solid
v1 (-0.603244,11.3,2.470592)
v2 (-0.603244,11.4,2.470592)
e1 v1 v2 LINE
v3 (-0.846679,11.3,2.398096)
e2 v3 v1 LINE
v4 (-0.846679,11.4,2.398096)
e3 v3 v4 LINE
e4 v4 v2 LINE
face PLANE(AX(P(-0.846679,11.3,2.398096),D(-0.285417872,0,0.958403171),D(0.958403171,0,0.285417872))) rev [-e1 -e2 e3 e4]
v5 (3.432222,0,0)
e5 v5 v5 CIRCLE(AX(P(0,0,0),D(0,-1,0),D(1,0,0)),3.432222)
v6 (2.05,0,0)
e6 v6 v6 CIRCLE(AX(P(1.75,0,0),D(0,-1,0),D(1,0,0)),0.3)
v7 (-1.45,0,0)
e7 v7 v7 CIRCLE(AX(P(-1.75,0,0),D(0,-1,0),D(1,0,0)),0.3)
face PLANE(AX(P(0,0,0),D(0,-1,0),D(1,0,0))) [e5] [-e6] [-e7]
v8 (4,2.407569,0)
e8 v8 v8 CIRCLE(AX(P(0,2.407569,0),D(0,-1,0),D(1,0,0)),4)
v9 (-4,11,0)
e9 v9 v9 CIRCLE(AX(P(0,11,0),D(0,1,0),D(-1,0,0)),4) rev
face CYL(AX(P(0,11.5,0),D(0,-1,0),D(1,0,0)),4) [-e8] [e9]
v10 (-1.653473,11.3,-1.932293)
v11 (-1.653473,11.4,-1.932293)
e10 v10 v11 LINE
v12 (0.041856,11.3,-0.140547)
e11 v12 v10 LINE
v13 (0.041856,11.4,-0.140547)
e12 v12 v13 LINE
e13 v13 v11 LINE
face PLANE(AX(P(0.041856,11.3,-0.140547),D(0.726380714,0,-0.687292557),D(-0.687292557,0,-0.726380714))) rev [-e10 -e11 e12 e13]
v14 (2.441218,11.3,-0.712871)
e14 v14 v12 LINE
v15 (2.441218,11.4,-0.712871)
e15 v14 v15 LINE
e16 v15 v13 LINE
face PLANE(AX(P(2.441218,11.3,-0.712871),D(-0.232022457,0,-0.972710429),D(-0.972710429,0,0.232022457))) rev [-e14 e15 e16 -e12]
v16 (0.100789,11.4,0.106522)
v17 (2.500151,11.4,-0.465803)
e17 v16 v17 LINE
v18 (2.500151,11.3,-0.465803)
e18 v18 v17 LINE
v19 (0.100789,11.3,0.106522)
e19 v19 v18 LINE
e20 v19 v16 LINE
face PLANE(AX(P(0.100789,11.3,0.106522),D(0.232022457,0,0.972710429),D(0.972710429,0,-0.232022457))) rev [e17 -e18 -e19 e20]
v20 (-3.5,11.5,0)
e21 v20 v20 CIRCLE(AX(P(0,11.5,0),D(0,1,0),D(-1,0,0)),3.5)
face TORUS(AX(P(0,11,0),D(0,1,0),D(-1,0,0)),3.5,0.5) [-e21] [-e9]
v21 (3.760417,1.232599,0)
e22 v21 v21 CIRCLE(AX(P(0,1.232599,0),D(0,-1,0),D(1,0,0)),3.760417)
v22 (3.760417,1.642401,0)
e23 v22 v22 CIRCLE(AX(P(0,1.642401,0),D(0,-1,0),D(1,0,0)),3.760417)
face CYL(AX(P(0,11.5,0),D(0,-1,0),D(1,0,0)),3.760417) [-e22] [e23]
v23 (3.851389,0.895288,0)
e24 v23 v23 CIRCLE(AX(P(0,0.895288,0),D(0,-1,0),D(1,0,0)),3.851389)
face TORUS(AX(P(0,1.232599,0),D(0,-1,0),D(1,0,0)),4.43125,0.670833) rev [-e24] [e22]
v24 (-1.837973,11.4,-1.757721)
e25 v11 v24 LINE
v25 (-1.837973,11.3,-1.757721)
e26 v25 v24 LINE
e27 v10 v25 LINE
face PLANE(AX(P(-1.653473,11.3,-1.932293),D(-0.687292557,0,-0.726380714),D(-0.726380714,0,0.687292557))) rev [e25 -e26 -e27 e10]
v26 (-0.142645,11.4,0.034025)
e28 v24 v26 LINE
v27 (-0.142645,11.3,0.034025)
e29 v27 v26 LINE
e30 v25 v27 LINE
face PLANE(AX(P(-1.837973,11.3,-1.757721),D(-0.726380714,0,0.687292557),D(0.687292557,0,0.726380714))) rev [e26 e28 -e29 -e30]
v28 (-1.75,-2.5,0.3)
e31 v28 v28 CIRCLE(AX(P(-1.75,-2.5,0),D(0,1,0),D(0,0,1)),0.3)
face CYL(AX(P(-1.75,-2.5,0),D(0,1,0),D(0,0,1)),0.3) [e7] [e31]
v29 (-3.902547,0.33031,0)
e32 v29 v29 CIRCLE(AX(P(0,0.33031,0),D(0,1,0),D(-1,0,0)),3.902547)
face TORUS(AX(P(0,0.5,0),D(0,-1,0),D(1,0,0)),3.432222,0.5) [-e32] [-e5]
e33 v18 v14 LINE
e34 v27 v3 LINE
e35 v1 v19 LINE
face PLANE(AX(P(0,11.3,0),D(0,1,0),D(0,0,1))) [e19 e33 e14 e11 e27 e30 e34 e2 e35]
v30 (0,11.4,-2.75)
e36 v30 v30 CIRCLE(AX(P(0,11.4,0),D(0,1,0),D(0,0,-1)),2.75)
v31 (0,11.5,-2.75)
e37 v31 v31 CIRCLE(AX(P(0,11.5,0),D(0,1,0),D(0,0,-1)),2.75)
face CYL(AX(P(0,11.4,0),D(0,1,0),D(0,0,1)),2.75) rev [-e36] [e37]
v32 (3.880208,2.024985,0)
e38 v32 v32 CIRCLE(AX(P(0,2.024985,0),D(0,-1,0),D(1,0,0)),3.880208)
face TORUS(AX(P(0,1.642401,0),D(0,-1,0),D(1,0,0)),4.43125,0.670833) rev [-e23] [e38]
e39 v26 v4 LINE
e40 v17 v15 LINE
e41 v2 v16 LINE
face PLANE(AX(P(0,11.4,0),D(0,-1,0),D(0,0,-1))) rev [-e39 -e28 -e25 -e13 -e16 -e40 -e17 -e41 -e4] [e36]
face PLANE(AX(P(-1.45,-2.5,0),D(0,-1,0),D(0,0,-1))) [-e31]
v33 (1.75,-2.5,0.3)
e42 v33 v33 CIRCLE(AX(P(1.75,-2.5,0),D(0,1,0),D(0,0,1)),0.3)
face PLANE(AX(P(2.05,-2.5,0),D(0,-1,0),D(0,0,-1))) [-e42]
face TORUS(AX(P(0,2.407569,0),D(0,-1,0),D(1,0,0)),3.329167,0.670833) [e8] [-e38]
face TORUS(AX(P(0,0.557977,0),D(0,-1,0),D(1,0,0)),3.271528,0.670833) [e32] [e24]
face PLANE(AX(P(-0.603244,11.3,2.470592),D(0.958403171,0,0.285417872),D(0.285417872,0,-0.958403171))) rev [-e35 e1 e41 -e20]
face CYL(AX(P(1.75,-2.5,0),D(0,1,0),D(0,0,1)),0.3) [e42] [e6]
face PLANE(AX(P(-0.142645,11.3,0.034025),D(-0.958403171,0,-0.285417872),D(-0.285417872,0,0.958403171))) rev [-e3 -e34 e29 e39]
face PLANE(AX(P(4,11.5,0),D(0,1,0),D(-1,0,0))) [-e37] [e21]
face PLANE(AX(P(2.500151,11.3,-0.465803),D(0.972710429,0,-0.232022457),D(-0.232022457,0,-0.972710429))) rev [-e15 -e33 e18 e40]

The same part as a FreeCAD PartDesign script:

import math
import FreeCAD as App
import Part
import Sketcher


def edges_at(feature, points):
    """Names of the edges that pass closest to the given points."""
    edges = feature.Shape.Edges
    near = lambda p: min(range(len(edges)), key=lambda i: edges[i].distToShape(Part.Vertex(*p))[0])
    return sorted({f"Edge{near(p) + 1}" for p in points})


def add_polygon(sketch, points):
    """Adds a closed chain of lines whose ends are joined by coincident constraints."""
    first, n = sketch.GeometryCount, len(points)
    for a, b in zip(points, points[1:] + points[:1]):
        sketch.addGeometry(Part.LineSegment(App.Vector(*a, 0), App.Vector(*b, 0)), False)
    for i in range(n):
        sketch.addConstraint(Sketcher.Constraint("Coincident", first + i, 2, first + (i + 1) % n, 1))

doc = App.newDocument("Part")
params = doc.addObject("Spreadsheet::Sheet", "Params")
for row, (alias, value) in enumerate([
    ("sketch1_width", "4 mm"),
    ("sketch1_height", "11.5 mm"),
    ("revolution_angle", "360 deg"),
    ("sketch2_diameter", "5.5 mm"),
    ("pocket1_length", "0.1 mm"),
    ("pocket2_length", "0.1 mm"),
    ("sketch4_width", "0.3 mm"),
    ("sketch4_height", "2.5 mm"),
    ("revolution2_angle", "360 deg"),
    ("sketch5_width", "0.3 mm"),
    ("sketch5_height", "2.5 mm"),
    ("revolution3_angle", "360 deg"),
    ("fillet_radius", "0.5 mm"),
], start=1):
    params.set(f"A{row}", alias)
    params.set(f"B{row}", "=" + value)
    params.setAlias(f"B{row}", alias)

body = doc.addObject("PartDesign::Body", "Body")

# Sketch on XY plane
sketch1 = body.newObject("Sketcher::SketchObject", "Sketch")
sketch1.AttachmentSupport = (doc.getObject("XY_Plane"), [""])
sketch1.MapMode = "FlatFace"
sketch1.addGeometry(Part.LineSegment(App.Vector(4, 11.5, 0), App.Vector(0, 11.5, 0)), False)
sketch1.addGeometry(Part.LineSegment(App.Vector(0, 11.5, 0), App.Vector(0, 0, 0)), False)
sketch1.addGeometry(Part.LineSegment(App.Vector(0, 0, 0), App.Vector(3.64, 0, 0)), False)
sketch1.addGeometry(Part.ArcOfCircle(Part.Circle(App.Vector(3.27, 0.56, 0), App.Vector(0, 0, 1), 0.67), math.radians(-56), math.radians(30)), False)
sketch1.addGeometry(Part.ArcOfCircle(Part.Circle(App.Vector(4.43, 1.23, 0), App.Vector(0, 0, 1), 0.67), math.radians(180), math.radians(210)), False)
sketch1.addGeometry(Part.LineSegment(App.Vector(3.76, 1.23, 0), App.Vector(3.76, 1.64, 0)), False)
sketch1.addGeometry(Part.ArcOfCircle(Part.Circle(App.Vector(4.43, 1.64, 0), App.Vector(0, 0, 1), 0.67), math.radians(145), math.radians(180)), False)
sketch1.addGeometry(Part.ArcOfCircle(Part.Circle(App.Vector(3.33, 2.41, 0), App.Vector(0, 0, 1), 0.67), math.radians(-35), math.radians(0)), False)
sketch1.addGeometry(Part.LineSegment(App.Vector(4, 2.41, 0), App.Vector(4, 11.5, 0)), False)
sketch1.addConstraint(Sketcher.Constraint("Coincident", 0, 2, 1, 1))
sketch1.addConstraint(Sketcher.Constraint("Coincident", 1, 2, 2, 1))
sketch1.addConstraint(Sketcher.Constraint("Coincident", 2, 2, 3, 1))
sketch1.addConstraint(Sketcher.Constraint("Tangent", 3, 2, 4, 2))
sketch1.addConstraint(Sketcher.Constraint("Tangent", 4, 1, 5, 1))
sketch1.addConstraint(Sketcher.Constraint("Tangent", 5, 2, 6, 2))
sketch1.addConstraint(Sketcher.Constraint("Tangent", 6, 1, 7, 1))
sketch1.addConstraint(Sketcher.Constraint("Tangent", 7, 2, 8, 1))
sketch1.addConstraint(Sketcher.Constraint("Coincident", 8, 2, 0, 1))
sketch1.addConstraint(Sketcher.Constraint("Horizontal", 0))
sketch1.addConstraint(Sketcher.Constraint("Vertical", 1))
sketch1.addConstraint(Sketcher.Constraint("Horizontal", 2))
sketch1.addConstraint(Sketcher.Constraint("Vertical", 5))
sketch1.addConstraint(Sketcher.Constraint("Vertical", 8))
sketch1.addConstraint(Sketcher.Constraint("Coincident", 1, 2, -1, 1))
sketch1.addConstraint(Sketcher.Constraint("Equal", 3, 4))
sketch1.addConstraint(Sketcher.Constraint("Equal", 4, 6))
sketch1.addConstraint(Sketcher.Constraint("Equal", 6, 7))
sketch1.addConstraint(Sketcher.Constraint("DistanceX", 0, 2, 0, 1, 4.0))
sketch1.addConstraint(Sketcher.Constraint("DistanceY", 1, 2, 1, 1, 11.5))
sketch1.addConstraint(Sketcher.Constraint("DistanceY", 5, 1, 5, 2, 0.409802))
sketch1.addConstraint(Sketcher.Constraint("Radius", 3, 0.670833))
sketch1.addConstraint(Sketcher.Constraint("DistanceY", 8, 1, 8, 2, 9.092431))
sketch1.addConstraint(Sketcher.Constraint("DistanceY", -1, 1, 4, 3, 1.232599))
sketch1.addConstraint(Sketcher.Constraint("DistanceX", 2, 1, 2, 2, 3.643924))
sketch1.setExpression("Constraints[18]", "Params.sketch1_width")
sketch1.setExpression("Constraints[19]", "Params.sketch1_height")
revolution = body.newObject("PartDesign::Revolution", "Revolution")
revolution.Profile = sketch1
revolution.ReferenceAxis = (sketch1, ["V_Axis"])
revolution.setExpression("Angle", "Params.revolution_angle")

# Sketch on XZ plane
sketch2 = body.newObject("Sketcher::SketchObject", "Sketch001")
sketch2.AttachmentSupport = (doc.getObject("XZ_Plane"), [""])
sketch2.MapMode = "FlatFace"
sketch2.AttachmentOffset = App.Placement(App.Vector(0, 0, -11.5), App.Rotation())
sketch2.addGeometry(Part.Circle(App.Vector(0, 0, 0), App.Vector(0, 0, 1), 2.8), False)
sketch2.addConstraint(Sketcher.Constraint("Coincident", 0, 3, -1, 1))
sketch2.addConstraint(Sketcher.Constraint("Diameter", 0, 5.5))
sketch2.setExpression("Constraints[1]", "Params.sketch2_diameter")
pocket1 = body.newObject("PartDesign::Pocket", "Pocket")
pocket1.Profile = sketch2
pocket1.setExpression("Length", "Params.pocket1_length")
pocket1.Reversed = True

# Sketch on XZ plane
sketch3 = body.newObject("Sketcher::SketchObject", "Sketch002")
sketch3.AttachmentSupport = (doc.getObject("XZ_Plane"), [""])
sketch3.MapMode = "FlatFace"
sketch3.AttachmentOffset = App.Placement(App.Vector(0, 0, -11.4), App.Rotation())
add_polygon(sketch3, [(-1.65, -1.93), (-1.84, -1.76), (-0.14, 0.03), (-0.85, 2.4), (-0.6, 2.47), (0.1, 0.11), (2.5, -0.47), (2.44, -0.71), (0.04, -0.14)])  # lines 0-8
sketch3.addConstraint(Sketcher.Constraint("Perpendicular", 0, 1))
sketch3.addConstraint(Sketcher.Constraint("Perpendicular", 2, 3))
sketch3.addConstraint(Sketcher.Constraint("Perpendicular", 3, 4))
sketch3.addConstraint(Sketcher.Constraint("Perpendicular", 5, 6))
sketch3.addConstraint(Sketcher.Constraint("Perpendicular", 6, 7))
sketch3.addConstraint(Sketcher.Constraint("Parallel", 1, 8))
sketch3.addConstraint(Sketcher.Constraint("Equal", 1, 2))
sketch3.addConstraint(Sketcher.Constraint("Equal", 0, 3))
sketch3.addConstraint(Sketcher.Constraint("Equal", 2, 4))
sketch3.addConstraint(Sketcher.Constraint("Equal", 4, 5))
sketch3.addConstraint(Sketcher.Constraint("Equal", 3, 6))
sketch3.addConstraint(Sketcher.Constraint("Equal", 5, 7))
sketch3.addConstraint(Sketcher.Constraint("Equal", 7, 8))
sketch3.addConstraint(Sketcher.Constraint("Distance", 0, 0.254))
sketch3.addConstraint(Sketcher.Constraint("DistanceX", 3, 2, 1, 2, 0.460599))
sketch3.addConstraint(Sketcher.Constraint("DistanceY", 5, 2, 2, 2, 2.863899))
sketch3.addConstraint(Sketcher.Constraint("DistanceY", 0, 2, -1, 1, 1.757721))
sketch3.addConstraint(Sketcher.Constraint("DistanceX", 2, 2, -1, 1, 0.846679))
pocket2 = body.newObject("PartDesign::Pocket", "Pocket001")
pocket2.Profile = sketch3
pocket2.setExpression("Length", "Params.pocket2_length")
pocket2.Reversed = True

# Sketch on XY plane
sketch4 = body.newObject("Sketcher::SketchObject", "Sketch003")
sketch4.AttachmentSupport = (doc.getObject("XY_Plane"), [""])
sketch4.MapMode = "FlatFace"
add_polygon(sketch4, [(2.05, 0), (2.05, -2.5), (1.75, -2.5), (1.75, 0)])  # lines 0-3
sketch4.addGeometry(Part.LineSegment(App.Vector(1.75, -2.5, 0), App.Vector(1.75, 0, 0)), True)  # axis
sketch4.addConstraint(Sketcher.Constraint("Vertical", 0))
sketch4.addConstraint(Sketcher.Constraint("Horizontal", 1))
sketch4.addConstraint(Sketcher.Constraint("Vertical", 2))
sketch4.addConstraint(Sketcher.Constraint("Horizontal", 3))
sketch4.addConstraint(Sketcher.Constraint("Vertical", 4))
sketch4.addConstraint(Sketcher.Constraint("Coincident", 4, 1, 1, 2))
sketch4.addConstraint(Sketcher.Constraint("PointOnObject", 2, 2, -1))
sketch4.addConstraint(Sketcher.Constraint("PointOnObject", 4, 2, -1))
sketch4.addConstraint(Sketcher.Constraint("DistanceX", 1, 2, 1, 1, 0.3))
sketch4.addConstraint(Sketcher.Constraint("DistanceY", 0, 2, 0, 1, 2.5))
sketch4.addConstraint(Sketcher.Constraint("DistanceX", -1, 1, 0, 2, 2.05))
sketch4.setExpression("Constraints[12]", "Params.sketch4_width")
sketch4.setExpression("Constraints[13]", "Params.sketch4_height")
revolution2 = body.newObject("PartDesign::Revolution", "Revolution001")
revolution2.Profile = sketch4
revolution2.ReferenceAxis = (sketch4, ["Axis0"])
revolution2.setExpression("Angle", "Params.revolution2_angle")

# Sketch on XY plane
sketch5 = body.newObject("Sketcher::SketchObject", "Sketch004")
sketch5.AttachmentSupport = (doc.getObject("XY_Plane"), [""])
sketch5.MapMode = "FlatFace"
add_polygon(sketch5, [(-1.45, 0), (-1.45, -2.5), (-1.75, -2.5), (-1.75, 0)])  # lines 0-3
sketch5.addGeometry(Part.LineSegment(App.Vector(-1.75, -2.5, 0), App.Vector(-1.75, 0, 0)), True)  # axis
sketch5.addConstraint(Sketcher.Constraint("Vertical", 0))
sketch5.addConstraint(Sketcher.Constraint("Horizontal", 1))
sketch5.addConstraint(Sketcher.Constraint("Vertical", 2))
sketch5.addConstraint(Sketcher.Constraint("Horizontal", 3))
sketch5.addConstraint(Sketcher.Constraint("Vertical", 4))
sketch5.addConstraint(Sketcher.Constraint("Coincident", 4, 1, 1, 2))
sketch5.addConstraint(Sketcher.Constraint("PointOnObject", 2, 2, -1))
sketch5.addConstraint(Sketcher.Constraint("PointOnObject", 4, 2, -1))
sketch5.addConstraint(Sketcher.Constraint("DistanceX", 1, 2, 1, 1, 0.3))
sketch5.addConstraint(Sketcher.Constraint("DistanceY", 0, 2, 0, 1, 2.5))
sketch5.addConstraint(Sketcher.Constraint("DistanceX", 0, 2, -1, 1, 1.45))
sketch5.setExpression("Constraints[12]", "Params.sketch5_width")
sketch5.setExpression("Constraints[13]", "Params.sketch5_height")
revolution3 = body.newObject("PartDesign::Revolution", "Revolution002")
revolution3.Profile = sketch5
revolution3.ReferenceAxis = (sketch5, ["Axis0"])
revolution3.setExpression("Angle", "Params.revolution3_angle")
doc.recompute()

fillet = body.newObject("PartDesign::Fillet", "Fillet")
fillet.Base = (revolution3, edges_at(revolution3, [(-4, 11.5, 0), (-3.644, 0, 0)]))
fillet.setExpression("Radius", "Params.fillet_radius")

doc.recompute()
